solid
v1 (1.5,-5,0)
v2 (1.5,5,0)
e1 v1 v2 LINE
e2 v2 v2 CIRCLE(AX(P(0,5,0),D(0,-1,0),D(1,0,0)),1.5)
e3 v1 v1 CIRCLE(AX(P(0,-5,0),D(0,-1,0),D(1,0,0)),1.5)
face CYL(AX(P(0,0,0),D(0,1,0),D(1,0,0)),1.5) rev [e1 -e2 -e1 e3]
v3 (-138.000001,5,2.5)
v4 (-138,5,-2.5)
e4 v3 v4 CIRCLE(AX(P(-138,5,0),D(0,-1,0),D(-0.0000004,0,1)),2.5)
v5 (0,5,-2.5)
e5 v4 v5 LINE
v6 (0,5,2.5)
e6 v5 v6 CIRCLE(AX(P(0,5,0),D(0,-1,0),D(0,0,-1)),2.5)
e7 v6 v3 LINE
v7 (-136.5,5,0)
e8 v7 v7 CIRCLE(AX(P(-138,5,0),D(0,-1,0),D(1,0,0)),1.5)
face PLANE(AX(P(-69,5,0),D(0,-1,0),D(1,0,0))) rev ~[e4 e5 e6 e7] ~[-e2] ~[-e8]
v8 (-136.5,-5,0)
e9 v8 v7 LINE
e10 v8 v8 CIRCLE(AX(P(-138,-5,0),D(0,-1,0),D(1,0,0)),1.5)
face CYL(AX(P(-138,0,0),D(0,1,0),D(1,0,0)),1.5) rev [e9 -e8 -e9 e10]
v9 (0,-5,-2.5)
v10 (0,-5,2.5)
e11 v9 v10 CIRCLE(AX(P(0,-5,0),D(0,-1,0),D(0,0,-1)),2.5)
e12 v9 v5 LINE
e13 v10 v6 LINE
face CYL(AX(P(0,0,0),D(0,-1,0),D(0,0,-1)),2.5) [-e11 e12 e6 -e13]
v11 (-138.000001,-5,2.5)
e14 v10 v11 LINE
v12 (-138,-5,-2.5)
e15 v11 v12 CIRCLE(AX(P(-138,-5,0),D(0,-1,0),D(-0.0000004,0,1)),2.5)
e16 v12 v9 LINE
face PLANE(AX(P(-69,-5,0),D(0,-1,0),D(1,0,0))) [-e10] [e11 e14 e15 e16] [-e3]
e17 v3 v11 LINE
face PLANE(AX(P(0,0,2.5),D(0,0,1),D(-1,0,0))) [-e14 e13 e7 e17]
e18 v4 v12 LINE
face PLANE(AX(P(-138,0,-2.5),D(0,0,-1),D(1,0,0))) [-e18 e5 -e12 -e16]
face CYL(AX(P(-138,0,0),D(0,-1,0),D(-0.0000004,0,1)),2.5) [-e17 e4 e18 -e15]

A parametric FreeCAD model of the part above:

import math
import FreeCAD as App
import Part
import Sketcher

V = App.Vector
Q = App.Units.Quantity

doc = App.newDocument("Part")
params = doc.addObject("Spreadsheet::Sheet", "Params")
for row, (alias, value) in enumerate([
    ("sketch1_diameter", "3 mm"),
    ("sketch1_radius", "2.5 mm"),
    ("sketch1_width", "138.000001 mm"),
    ("pad1_length", "10 mm"),
], start=1):
    params.set(f"A{row}", alias)
    params.set(f"B{row}", "=" + value)
    params.setAlias(f"B{row}", alias)

body = doc.addObject("PartDesign::Body", "Body")

# Sketch on XZ plane
sketch1 = body.newObject("Sketcher::SketchObject", "Sketch")
sketch1.AttachmentSupport = (doc.getObject("XZ_Plane"), [""])
sketch1.MapMode = "FlatFace"
sketch1.addGeometry([
    Part.LineSegment(V(0, 2.5, 0), V(-138, 2.5, 0)),  # 0
    Part.ArcOfCircle(Part.Circle(V(-138, 0, 0), V(0, 0, 1), 2.5), math.radians(90), math.radians(270)),  # 1
    Part.LineSegment(V(-138, -2.5, 0), V(0, -2.5, 0)),  # 2
    Part.ArcOfCircle(Part.Circle(V(0, 0, 0), V(0, 0, 1), 2.5), math.radians(-90), math.radians(90)),  # 3
    Part.Circle(V(-138, 0, 0), V(0, 0, 1), 1.5),  # 4
    Part.Circle(V(0, 0, 0), V(0, 0, 1), 1.5),  # 5
], False)
sketch1.addConstraint([
    Sketcher.Constraint("Tangent", 0, 2, 1, 1),
    Sketcher.Constraint("Tangent", 1, 2, 2, 1),
    Sketcher.Constraint("Tangent", 2, 2, 3, 1),
    Sketcher.Constraint("Tangent", 3, 2, 0, 1),
    Sketcher.Constraint("Horizontal", 0),
    Sketcher.Constraint("Horizontal", 2),
    Sketcher.Constraint("Coincident", 3, 3, -1, 1),
    Sketcher.Constraint("Coincident", 5, 3, -1, 1),
    Sketcher.Constraint("Coincident", 4, 3, 1, 3),
    Sketcher.Constraint("Equal", 4, 5),
    Sketcher.Constraint("Diameter", 4, Q("3 mm")),
    Sketcher.Constraint("Radius", 1, Q("2.5 mm")),
    Sketcher.Constraint("DistanceX", 0, 2, 0, 1, Q("138.000001 mm")),
])
sketch1.setExpression("Constraints[10]", "Params.sketch1_diameter")
sketch1.setExpression("Constraints[11]", "Params.sketch1_radius")
sketch1.setExpression("Constraints[12]", "Params.sketch1_width")
pad1 = body.newObject("PartDesign::Pad", "Pad")
pad1.Profile = sketch1
pad1.setExpression("Length", "Params.pad1_length")
pad1.Midplane = True

doc.recompute()
